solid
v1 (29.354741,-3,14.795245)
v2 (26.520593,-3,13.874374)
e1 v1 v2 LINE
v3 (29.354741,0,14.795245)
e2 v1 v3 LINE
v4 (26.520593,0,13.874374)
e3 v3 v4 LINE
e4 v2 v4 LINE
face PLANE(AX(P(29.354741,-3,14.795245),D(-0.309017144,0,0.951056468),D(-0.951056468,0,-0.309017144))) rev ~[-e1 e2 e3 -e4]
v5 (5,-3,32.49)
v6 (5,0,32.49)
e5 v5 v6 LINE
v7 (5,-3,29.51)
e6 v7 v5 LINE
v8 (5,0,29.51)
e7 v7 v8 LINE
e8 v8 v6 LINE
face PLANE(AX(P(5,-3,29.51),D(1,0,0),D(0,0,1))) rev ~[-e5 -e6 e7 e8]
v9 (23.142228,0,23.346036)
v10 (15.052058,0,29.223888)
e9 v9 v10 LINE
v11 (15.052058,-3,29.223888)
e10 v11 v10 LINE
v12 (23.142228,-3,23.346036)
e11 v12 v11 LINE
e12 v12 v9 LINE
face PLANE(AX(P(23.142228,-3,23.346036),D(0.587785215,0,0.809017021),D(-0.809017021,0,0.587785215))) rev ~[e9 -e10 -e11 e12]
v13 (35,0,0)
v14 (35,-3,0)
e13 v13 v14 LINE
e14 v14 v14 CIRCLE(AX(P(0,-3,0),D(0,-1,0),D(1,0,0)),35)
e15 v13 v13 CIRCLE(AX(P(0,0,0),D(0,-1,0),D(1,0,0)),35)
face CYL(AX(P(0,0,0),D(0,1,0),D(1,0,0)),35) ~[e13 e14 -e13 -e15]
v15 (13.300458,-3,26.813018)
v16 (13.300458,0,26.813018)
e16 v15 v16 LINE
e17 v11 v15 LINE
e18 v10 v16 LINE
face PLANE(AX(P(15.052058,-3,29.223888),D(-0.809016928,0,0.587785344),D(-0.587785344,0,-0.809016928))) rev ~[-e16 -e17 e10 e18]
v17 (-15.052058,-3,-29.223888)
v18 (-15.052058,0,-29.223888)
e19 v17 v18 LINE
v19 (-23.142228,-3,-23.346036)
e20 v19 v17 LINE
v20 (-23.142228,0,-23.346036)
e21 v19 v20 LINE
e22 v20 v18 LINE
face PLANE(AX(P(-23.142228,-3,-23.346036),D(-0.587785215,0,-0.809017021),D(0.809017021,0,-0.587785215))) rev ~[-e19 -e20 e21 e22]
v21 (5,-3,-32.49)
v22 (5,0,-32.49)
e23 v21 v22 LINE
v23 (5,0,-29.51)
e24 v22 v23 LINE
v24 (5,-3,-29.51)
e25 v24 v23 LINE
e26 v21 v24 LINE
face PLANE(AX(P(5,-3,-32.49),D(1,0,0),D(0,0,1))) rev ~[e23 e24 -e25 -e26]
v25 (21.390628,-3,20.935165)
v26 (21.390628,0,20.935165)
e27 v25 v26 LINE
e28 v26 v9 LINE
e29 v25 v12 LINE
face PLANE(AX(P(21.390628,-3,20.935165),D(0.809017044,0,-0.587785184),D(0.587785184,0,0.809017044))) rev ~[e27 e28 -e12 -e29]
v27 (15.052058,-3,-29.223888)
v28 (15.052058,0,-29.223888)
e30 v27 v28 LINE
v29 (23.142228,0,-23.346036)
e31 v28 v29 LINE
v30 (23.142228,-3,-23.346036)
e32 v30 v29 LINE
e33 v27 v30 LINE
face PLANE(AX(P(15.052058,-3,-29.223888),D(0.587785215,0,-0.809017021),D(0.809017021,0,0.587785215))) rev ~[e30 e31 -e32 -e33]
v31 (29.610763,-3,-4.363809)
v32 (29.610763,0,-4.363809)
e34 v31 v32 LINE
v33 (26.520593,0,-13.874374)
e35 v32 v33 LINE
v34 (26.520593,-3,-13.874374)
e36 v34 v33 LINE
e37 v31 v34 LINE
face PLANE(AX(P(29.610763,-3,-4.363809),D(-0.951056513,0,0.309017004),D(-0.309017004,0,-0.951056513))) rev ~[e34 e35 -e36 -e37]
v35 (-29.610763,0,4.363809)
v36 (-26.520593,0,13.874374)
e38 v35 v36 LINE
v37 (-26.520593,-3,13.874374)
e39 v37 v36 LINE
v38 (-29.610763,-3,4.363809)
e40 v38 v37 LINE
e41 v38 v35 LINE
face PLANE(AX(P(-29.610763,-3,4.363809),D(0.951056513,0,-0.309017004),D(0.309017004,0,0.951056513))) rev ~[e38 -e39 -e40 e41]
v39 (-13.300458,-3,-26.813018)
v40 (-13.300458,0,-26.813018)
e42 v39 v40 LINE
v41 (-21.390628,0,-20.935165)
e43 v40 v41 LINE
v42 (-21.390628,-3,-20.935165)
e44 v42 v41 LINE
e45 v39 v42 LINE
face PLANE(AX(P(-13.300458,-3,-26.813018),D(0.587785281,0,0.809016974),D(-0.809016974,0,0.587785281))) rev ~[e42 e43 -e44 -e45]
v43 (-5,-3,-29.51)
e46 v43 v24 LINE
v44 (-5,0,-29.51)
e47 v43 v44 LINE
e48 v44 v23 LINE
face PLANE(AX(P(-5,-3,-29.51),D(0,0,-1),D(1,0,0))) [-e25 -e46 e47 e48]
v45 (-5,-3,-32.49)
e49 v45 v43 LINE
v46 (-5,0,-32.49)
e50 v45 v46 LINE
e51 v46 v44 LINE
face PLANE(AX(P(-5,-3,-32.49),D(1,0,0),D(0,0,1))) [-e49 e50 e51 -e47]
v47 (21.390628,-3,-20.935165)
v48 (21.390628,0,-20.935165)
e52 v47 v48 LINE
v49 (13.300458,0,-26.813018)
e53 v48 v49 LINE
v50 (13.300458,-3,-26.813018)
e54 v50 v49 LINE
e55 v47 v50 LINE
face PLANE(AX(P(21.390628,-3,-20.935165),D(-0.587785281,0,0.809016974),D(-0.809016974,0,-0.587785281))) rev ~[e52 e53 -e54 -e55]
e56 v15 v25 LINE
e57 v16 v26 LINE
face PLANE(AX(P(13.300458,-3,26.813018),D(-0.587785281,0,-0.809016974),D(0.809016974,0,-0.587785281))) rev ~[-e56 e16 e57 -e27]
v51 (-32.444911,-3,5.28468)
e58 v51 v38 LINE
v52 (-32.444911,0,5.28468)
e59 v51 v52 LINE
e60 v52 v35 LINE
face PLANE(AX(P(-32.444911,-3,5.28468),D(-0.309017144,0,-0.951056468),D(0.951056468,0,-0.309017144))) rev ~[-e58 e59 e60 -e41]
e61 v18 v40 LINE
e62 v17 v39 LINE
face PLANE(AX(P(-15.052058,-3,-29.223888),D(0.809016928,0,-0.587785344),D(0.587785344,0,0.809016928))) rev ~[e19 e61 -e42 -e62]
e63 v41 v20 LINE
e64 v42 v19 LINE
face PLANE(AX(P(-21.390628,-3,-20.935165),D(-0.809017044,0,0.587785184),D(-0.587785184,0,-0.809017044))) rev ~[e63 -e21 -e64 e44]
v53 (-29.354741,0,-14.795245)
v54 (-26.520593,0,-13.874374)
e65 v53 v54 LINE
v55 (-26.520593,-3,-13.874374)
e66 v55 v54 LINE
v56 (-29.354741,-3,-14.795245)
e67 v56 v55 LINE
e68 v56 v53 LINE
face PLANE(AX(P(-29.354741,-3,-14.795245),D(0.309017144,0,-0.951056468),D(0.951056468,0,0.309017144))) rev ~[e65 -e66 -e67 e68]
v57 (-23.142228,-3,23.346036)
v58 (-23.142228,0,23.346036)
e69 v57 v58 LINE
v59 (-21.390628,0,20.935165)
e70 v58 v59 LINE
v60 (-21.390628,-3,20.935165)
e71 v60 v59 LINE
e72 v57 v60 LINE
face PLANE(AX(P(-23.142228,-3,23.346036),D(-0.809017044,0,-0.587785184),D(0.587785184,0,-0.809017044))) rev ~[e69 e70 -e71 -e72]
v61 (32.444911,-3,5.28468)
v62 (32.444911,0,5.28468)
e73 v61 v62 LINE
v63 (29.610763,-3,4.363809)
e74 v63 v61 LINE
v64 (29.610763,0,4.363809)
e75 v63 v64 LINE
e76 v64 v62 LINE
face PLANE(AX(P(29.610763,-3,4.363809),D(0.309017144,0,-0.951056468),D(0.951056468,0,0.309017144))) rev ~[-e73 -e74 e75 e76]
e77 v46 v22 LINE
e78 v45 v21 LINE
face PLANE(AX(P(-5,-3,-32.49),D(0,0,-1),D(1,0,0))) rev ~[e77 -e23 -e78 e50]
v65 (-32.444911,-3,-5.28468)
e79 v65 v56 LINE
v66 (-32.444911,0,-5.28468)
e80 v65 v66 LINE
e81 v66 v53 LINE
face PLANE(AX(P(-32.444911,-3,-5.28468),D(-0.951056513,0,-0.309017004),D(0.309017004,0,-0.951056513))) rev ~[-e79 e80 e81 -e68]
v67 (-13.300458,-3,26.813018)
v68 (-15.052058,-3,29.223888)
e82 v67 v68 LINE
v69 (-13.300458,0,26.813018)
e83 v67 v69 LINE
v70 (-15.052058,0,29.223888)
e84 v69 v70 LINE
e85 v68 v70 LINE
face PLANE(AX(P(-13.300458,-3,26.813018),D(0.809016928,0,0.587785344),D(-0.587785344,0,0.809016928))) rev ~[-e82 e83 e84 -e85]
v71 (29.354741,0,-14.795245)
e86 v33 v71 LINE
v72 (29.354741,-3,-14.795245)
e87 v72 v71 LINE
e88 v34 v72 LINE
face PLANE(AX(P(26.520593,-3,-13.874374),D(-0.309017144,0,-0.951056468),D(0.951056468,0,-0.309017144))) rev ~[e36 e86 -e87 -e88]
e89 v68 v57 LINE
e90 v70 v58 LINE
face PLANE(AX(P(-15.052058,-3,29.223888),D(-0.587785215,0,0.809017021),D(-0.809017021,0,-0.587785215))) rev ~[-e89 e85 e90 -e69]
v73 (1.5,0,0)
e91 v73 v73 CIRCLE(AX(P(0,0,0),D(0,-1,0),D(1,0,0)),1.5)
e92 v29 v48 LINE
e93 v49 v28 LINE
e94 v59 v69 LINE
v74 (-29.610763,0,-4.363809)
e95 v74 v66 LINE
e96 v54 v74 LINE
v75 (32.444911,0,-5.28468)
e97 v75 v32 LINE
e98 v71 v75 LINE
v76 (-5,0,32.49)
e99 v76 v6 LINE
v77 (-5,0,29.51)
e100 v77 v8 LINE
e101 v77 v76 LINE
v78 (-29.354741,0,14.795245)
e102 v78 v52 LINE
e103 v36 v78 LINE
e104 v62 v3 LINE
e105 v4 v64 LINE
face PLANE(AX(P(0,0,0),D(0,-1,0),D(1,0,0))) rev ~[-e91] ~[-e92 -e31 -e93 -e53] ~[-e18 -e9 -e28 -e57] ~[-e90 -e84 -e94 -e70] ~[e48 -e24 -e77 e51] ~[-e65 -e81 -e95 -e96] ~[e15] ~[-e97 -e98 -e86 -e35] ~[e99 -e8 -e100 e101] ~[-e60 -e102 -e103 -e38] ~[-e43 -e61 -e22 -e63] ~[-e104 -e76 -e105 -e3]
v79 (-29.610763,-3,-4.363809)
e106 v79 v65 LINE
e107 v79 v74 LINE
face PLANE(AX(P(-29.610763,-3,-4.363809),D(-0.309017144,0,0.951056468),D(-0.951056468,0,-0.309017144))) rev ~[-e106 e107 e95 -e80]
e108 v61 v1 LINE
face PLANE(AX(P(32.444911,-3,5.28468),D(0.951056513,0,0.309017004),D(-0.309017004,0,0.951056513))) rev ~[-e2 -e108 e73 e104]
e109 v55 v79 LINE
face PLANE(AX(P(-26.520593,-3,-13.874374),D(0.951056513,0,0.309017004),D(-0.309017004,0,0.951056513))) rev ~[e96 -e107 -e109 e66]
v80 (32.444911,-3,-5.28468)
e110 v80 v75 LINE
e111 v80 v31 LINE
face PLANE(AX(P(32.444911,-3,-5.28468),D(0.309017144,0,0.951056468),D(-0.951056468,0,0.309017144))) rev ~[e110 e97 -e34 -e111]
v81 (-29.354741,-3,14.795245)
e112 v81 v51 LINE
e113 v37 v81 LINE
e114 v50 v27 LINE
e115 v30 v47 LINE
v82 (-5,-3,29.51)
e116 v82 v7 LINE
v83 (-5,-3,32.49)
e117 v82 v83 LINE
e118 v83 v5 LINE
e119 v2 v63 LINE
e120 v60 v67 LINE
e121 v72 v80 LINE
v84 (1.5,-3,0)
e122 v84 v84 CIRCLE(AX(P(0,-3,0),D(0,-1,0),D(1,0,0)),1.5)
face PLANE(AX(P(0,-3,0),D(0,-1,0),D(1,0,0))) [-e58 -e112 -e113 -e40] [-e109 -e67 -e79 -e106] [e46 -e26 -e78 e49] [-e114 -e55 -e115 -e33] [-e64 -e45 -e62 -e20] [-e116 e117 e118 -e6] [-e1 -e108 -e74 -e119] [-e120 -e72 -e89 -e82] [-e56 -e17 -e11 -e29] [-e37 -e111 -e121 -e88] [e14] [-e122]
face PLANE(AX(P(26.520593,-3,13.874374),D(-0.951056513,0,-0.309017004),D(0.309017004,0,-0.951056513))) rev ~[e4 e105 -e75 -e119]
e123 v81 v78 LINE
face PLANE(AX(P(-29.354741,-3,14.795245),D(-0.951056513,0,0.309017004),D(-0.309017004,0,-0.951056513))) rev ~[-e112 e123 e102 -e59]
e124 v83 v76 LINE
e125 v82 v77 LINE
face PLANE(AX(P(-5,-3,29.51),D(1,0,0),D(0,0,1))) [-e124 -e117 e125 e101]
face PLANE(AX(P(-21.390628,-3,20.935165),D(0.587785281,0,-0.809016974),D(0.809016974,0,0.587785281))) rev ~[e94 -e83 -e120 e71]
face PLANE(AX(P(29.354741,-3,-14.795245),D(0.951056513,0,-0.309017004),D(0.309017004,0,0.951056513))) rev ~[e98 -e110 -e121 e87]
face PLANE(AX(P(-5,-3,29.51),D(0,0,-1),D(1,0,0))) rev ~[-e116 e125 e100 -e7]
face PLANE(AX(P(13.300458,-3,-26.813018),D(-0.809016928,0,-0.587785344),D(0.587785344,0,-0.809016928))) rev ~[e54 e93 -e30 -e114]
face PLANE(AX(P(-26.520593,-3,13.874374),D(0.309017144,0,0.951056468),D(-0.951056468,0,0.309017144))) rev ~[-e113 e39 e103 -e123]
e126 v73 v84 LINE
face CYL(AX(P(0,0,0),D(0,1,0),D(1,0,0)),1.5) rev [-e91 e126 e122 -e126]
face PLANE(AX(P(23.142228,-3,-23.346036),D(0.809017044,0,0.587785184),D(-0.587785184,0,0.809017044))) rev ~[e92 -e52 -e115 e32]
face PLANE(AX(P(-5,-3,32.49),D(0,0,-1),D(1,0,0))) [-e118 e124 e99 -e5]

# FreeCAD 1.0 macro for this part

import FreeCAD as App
import Part
import Sketcher
from FreeCAD import Vector
Q = App.Units.Quantity


def add_polygon(sketch, points):
    """Adds a closed chain of lines whose ends are joined by coincident constraints."""
    first, n = sketch.GeometryCount, len(points)
    for a, b in zip(points, points[1:] + points[:1]):
        sketch.addGeometry(Part.LineSegment(App.Vector(*a, 0), App.Vector(*b, 0)), False)
    for i in range(n):
        sketch.addConstraint(Sketcher.Constraint("Coincident", first + i, 2, first + (i + 1) % n, 1))

doc = App.newDocument("Part")
body = doc.addObject("PartDesign::Body", "Body")

# Sketch on XZ plane
sketch1 = body.newObject("Sketcher::SketchObject", "Sketch")
sketch1.AttachmentSupport = (doc.getObject("XZ_Plane"), [""])
sketch1.MapMode = "FlatFace"
sketch1.addGeometry([
    Part.Circle(Vector(0, 0, 0), Vector(0, 0, 1), 35),
    Part.Circle(Vector(0, 0, 0), Vector(0, 0, 1), 1.5),
], False)
sketch1.addConstraint([
    Sketcher.Constraint("Coincident", 0, 3, -1, 1),
    Sketcher.Constraint("Coincident", 1, 3, -1, 1),
    Sketcher.Constraint("Diameter", 0, 70.0),
    Sketcher.Constraint("Diameter", 1, 3.0),
])
pad1 = body.newObject("PartDesign::Pad", "Pad")
pad1.Profile = sketch1
pad1.Length = 3

# Sketch on XZ plane
sketch2 = body.newObject("Sketcher::SketchObject", "Sketch001")
sketch2.AttachmentSupport = (doc.getObject("XZ_Plane"), [""])
sketch2.MapMode = "FlatFace"
sketch2.AttachmentOffset = App.Placement(Vector(0, 0, 3), App.Rotation())
add_polygon(sketch2, [(-5, -29.5), (-5, -32.5), (5, -32.5), (5, -29.5)])  # lines 0-3
add_polygon(sketch2, [(23.1, -23.3), (21.4, -20.9), (13.3, -26.8), (15.1, -29.2)])  # lines 4-7
add_polygon(sketch2, [(32.4, -5.3), (29.6, -4.4), (26.5, -13.9), (29.4, -14.8)])  # lines 8-11
add_polygon(sketch2, [(29.4, 14.8), (26.5, 13.9), (29.6, 4.4), (32.4, 5.3)])  # lines 12-15
add_polygon(sketch2, [(15.1, 29.2), (13.3, 26.8), (21.4, 20.9), (23.1, 23.3)])  # lines 16-19
add_polygon(sketch2, [(-5, 32.5), (-5, 29.5), (5, 29.5), (5, 32.5)])  # lines 20-23
add_polygon(sketch2, [(-23.1, 23.3), (-21.4, 20.9), (-13.3, 26.8), (-15.1, 29.2)])  # lines 24-27
add_polygon(sketch2, [(-32.4, 5.3), (-29.6, 4.4), (-26.5, 13.9), (-29.4, 14.8)])  # lines 28-31
add_polygon(sketch2, [(-29.4, -14.8), (-26.5, -13.9), (-29.6, -4.4), (-32.4, -5.3)])  # lines 32-35
add_polygon(sketch2, [(-15.1, -29.2), (-13.3, -26.8), (-21.4, -20.9), (-23.1, -23.3)])  # lines 36-39
sketch2.addConstraint([
    Sketcher.Constraint("Vertical", 0),
    Sketcher.Constraint("Horizontal", 1),
    Sketcher.Constraint("Vertical", 2),
    Sketcher.Constraint("Horizontal", 3),
    Sketcher.Constraint("Vertical", 20),
    Sketcher.Constraint("Horizontal", 21),
    Sketcher.Constraint("Vertical", 22),
    Sketcher.Constraint("Horizontal", 23),
    Sketcher.Constraint("Symmetric", 2, 2, 20, 2, -1, 1),
    Sketcher.Constraint("Symmetric", 0, 2, 22, 2, -1, 1),
    Sketcher.Constraint("Symmetric", 4, 2, 24, 2, -1, 1),
    Sketcher.Constraint("Symmetric", 5, 2, 25, 2, -1, 1),
    Sketcher.Constraint("Symmetric", 6, 2, 26, 2, -1, 1),
    Sketcher.Constraint("Symmetric", 7, 2, 27, 2, -1, 1),
    Sketcher.Constraint("Symmetric", 8, 2, 28, 2, -1, 1),
    Sketcher.Constraint("Symmetric", 9, 2, 29, 2, -1, 1),
    Sketcher.Constraint("Symmetric", 10, 2, 30, 2, -1, 1),
    Sketcher.Constraint("Symmetric", 11, 2, 31, 2, -1, 1),
    Sketcher.Constraint("Symmetric", 12, 2, 32, 2, -1, 1),
    Sketcher.Constraint("Symmetric", 13, 2, 33, 2, -1, 1),
    Sketcher.Constraint("Symmetric", 14, 2, 34, 2, -1, 1),
    Sketcher.Constraint("Symmetric", 15, 2, 35, 2, -1, 1),
    Sketcher.Constraint("Symmetric", 16, 2, 36, 2, -1, 1),
    Sketcher.Constraint("Symmetric", 17, 2, 37, 2, -1, 1),
    Sketcher.Constraint("Symmetric", 18, 2, 38, 2, -1, 1),
    Sketcher.Constraint("Symmetric", 19, 2, 39, 2, -1, 1),
    Sketcher.Constraint("Symmetric", 17, 2, 24, 2, -2),
    Sketcher.Constraint("Symmetric", 16, 2, 25, 2, -2),
    Sketcher.Constraint("Symmetric", 19, 2, 26, 2, -2),
    Sketcher.Constraint("Symmetric", 18, 2, 27, 2, -2),
    Sketcher.Constraint("Symmetric", 13, 2, 28, 2, -2),
    Sketcher.Constraint("Symmetric", 12, 2, 29, 2, -2),
    Sketcher.Constraint("Symmetric", 15, 2, 30, 2, -2),
    Sketcher.Constraint("Symmetric", 14, 2, 31, 2, -2),
    Sketcher.Constraint("Perpendicular", 4, 5),
    Sketcher.Constraint("Perpendicular", 5, 6),
    Sketcher.Constraint("Perpendicular", 6, 7),
    Sketcher.Constraint("Perpendicular", 8, 9),
    Sketcher.Constraint("Perpendicular", 9, 10),
    Sketcher.Constraint("Perpendicular", 10, 11),
    Sketcher.Constraint("Vertical", 3, 2, 20, 2),
    Sketcher.Constraint("Equal", 6, 8),
    Sketcher.Constraint("Equal", 7, 9),
    Sketcher.Constraint("DistanceX", 1, 1, 1, 2, 10.0),
    Sketcher.Constraint("Angle", 4, Q("125.999995 deg")),
    Sketcher.Constraint("Angle", 8, Q("161.999991 deg")),
    Sketcher.Constraint("Distance", 5, 10.0),
    Sketcher.Constraint("DistanceY", 0, 2, 0, 1, 2.98),
    Sketcher.Constraint("Distance", 4, 2.98),
    Sketcher.Constraint("DistanceY", 0, 2, -1, 1, 32.49),
    Sketcher.Constraint("DistanceX", -1, 1, 5, 2, 13.300458),
    Sketcher.Constraint("DistanceY", 8, 2, -1, 1, 4.363809),
    Sketcher.Constraint("DistanceX", -1, 1, 10, 2, 29.354741),
    Sketcher.Constraint("DistanceY", 5, 2, 8, 2, 22.449209),
])
pocket1 = body.newObject("PartDesign::Pocket", "Pocket")
pocket1.Profile = sketch2
pocket1.Length = 25

doc.recompute()
